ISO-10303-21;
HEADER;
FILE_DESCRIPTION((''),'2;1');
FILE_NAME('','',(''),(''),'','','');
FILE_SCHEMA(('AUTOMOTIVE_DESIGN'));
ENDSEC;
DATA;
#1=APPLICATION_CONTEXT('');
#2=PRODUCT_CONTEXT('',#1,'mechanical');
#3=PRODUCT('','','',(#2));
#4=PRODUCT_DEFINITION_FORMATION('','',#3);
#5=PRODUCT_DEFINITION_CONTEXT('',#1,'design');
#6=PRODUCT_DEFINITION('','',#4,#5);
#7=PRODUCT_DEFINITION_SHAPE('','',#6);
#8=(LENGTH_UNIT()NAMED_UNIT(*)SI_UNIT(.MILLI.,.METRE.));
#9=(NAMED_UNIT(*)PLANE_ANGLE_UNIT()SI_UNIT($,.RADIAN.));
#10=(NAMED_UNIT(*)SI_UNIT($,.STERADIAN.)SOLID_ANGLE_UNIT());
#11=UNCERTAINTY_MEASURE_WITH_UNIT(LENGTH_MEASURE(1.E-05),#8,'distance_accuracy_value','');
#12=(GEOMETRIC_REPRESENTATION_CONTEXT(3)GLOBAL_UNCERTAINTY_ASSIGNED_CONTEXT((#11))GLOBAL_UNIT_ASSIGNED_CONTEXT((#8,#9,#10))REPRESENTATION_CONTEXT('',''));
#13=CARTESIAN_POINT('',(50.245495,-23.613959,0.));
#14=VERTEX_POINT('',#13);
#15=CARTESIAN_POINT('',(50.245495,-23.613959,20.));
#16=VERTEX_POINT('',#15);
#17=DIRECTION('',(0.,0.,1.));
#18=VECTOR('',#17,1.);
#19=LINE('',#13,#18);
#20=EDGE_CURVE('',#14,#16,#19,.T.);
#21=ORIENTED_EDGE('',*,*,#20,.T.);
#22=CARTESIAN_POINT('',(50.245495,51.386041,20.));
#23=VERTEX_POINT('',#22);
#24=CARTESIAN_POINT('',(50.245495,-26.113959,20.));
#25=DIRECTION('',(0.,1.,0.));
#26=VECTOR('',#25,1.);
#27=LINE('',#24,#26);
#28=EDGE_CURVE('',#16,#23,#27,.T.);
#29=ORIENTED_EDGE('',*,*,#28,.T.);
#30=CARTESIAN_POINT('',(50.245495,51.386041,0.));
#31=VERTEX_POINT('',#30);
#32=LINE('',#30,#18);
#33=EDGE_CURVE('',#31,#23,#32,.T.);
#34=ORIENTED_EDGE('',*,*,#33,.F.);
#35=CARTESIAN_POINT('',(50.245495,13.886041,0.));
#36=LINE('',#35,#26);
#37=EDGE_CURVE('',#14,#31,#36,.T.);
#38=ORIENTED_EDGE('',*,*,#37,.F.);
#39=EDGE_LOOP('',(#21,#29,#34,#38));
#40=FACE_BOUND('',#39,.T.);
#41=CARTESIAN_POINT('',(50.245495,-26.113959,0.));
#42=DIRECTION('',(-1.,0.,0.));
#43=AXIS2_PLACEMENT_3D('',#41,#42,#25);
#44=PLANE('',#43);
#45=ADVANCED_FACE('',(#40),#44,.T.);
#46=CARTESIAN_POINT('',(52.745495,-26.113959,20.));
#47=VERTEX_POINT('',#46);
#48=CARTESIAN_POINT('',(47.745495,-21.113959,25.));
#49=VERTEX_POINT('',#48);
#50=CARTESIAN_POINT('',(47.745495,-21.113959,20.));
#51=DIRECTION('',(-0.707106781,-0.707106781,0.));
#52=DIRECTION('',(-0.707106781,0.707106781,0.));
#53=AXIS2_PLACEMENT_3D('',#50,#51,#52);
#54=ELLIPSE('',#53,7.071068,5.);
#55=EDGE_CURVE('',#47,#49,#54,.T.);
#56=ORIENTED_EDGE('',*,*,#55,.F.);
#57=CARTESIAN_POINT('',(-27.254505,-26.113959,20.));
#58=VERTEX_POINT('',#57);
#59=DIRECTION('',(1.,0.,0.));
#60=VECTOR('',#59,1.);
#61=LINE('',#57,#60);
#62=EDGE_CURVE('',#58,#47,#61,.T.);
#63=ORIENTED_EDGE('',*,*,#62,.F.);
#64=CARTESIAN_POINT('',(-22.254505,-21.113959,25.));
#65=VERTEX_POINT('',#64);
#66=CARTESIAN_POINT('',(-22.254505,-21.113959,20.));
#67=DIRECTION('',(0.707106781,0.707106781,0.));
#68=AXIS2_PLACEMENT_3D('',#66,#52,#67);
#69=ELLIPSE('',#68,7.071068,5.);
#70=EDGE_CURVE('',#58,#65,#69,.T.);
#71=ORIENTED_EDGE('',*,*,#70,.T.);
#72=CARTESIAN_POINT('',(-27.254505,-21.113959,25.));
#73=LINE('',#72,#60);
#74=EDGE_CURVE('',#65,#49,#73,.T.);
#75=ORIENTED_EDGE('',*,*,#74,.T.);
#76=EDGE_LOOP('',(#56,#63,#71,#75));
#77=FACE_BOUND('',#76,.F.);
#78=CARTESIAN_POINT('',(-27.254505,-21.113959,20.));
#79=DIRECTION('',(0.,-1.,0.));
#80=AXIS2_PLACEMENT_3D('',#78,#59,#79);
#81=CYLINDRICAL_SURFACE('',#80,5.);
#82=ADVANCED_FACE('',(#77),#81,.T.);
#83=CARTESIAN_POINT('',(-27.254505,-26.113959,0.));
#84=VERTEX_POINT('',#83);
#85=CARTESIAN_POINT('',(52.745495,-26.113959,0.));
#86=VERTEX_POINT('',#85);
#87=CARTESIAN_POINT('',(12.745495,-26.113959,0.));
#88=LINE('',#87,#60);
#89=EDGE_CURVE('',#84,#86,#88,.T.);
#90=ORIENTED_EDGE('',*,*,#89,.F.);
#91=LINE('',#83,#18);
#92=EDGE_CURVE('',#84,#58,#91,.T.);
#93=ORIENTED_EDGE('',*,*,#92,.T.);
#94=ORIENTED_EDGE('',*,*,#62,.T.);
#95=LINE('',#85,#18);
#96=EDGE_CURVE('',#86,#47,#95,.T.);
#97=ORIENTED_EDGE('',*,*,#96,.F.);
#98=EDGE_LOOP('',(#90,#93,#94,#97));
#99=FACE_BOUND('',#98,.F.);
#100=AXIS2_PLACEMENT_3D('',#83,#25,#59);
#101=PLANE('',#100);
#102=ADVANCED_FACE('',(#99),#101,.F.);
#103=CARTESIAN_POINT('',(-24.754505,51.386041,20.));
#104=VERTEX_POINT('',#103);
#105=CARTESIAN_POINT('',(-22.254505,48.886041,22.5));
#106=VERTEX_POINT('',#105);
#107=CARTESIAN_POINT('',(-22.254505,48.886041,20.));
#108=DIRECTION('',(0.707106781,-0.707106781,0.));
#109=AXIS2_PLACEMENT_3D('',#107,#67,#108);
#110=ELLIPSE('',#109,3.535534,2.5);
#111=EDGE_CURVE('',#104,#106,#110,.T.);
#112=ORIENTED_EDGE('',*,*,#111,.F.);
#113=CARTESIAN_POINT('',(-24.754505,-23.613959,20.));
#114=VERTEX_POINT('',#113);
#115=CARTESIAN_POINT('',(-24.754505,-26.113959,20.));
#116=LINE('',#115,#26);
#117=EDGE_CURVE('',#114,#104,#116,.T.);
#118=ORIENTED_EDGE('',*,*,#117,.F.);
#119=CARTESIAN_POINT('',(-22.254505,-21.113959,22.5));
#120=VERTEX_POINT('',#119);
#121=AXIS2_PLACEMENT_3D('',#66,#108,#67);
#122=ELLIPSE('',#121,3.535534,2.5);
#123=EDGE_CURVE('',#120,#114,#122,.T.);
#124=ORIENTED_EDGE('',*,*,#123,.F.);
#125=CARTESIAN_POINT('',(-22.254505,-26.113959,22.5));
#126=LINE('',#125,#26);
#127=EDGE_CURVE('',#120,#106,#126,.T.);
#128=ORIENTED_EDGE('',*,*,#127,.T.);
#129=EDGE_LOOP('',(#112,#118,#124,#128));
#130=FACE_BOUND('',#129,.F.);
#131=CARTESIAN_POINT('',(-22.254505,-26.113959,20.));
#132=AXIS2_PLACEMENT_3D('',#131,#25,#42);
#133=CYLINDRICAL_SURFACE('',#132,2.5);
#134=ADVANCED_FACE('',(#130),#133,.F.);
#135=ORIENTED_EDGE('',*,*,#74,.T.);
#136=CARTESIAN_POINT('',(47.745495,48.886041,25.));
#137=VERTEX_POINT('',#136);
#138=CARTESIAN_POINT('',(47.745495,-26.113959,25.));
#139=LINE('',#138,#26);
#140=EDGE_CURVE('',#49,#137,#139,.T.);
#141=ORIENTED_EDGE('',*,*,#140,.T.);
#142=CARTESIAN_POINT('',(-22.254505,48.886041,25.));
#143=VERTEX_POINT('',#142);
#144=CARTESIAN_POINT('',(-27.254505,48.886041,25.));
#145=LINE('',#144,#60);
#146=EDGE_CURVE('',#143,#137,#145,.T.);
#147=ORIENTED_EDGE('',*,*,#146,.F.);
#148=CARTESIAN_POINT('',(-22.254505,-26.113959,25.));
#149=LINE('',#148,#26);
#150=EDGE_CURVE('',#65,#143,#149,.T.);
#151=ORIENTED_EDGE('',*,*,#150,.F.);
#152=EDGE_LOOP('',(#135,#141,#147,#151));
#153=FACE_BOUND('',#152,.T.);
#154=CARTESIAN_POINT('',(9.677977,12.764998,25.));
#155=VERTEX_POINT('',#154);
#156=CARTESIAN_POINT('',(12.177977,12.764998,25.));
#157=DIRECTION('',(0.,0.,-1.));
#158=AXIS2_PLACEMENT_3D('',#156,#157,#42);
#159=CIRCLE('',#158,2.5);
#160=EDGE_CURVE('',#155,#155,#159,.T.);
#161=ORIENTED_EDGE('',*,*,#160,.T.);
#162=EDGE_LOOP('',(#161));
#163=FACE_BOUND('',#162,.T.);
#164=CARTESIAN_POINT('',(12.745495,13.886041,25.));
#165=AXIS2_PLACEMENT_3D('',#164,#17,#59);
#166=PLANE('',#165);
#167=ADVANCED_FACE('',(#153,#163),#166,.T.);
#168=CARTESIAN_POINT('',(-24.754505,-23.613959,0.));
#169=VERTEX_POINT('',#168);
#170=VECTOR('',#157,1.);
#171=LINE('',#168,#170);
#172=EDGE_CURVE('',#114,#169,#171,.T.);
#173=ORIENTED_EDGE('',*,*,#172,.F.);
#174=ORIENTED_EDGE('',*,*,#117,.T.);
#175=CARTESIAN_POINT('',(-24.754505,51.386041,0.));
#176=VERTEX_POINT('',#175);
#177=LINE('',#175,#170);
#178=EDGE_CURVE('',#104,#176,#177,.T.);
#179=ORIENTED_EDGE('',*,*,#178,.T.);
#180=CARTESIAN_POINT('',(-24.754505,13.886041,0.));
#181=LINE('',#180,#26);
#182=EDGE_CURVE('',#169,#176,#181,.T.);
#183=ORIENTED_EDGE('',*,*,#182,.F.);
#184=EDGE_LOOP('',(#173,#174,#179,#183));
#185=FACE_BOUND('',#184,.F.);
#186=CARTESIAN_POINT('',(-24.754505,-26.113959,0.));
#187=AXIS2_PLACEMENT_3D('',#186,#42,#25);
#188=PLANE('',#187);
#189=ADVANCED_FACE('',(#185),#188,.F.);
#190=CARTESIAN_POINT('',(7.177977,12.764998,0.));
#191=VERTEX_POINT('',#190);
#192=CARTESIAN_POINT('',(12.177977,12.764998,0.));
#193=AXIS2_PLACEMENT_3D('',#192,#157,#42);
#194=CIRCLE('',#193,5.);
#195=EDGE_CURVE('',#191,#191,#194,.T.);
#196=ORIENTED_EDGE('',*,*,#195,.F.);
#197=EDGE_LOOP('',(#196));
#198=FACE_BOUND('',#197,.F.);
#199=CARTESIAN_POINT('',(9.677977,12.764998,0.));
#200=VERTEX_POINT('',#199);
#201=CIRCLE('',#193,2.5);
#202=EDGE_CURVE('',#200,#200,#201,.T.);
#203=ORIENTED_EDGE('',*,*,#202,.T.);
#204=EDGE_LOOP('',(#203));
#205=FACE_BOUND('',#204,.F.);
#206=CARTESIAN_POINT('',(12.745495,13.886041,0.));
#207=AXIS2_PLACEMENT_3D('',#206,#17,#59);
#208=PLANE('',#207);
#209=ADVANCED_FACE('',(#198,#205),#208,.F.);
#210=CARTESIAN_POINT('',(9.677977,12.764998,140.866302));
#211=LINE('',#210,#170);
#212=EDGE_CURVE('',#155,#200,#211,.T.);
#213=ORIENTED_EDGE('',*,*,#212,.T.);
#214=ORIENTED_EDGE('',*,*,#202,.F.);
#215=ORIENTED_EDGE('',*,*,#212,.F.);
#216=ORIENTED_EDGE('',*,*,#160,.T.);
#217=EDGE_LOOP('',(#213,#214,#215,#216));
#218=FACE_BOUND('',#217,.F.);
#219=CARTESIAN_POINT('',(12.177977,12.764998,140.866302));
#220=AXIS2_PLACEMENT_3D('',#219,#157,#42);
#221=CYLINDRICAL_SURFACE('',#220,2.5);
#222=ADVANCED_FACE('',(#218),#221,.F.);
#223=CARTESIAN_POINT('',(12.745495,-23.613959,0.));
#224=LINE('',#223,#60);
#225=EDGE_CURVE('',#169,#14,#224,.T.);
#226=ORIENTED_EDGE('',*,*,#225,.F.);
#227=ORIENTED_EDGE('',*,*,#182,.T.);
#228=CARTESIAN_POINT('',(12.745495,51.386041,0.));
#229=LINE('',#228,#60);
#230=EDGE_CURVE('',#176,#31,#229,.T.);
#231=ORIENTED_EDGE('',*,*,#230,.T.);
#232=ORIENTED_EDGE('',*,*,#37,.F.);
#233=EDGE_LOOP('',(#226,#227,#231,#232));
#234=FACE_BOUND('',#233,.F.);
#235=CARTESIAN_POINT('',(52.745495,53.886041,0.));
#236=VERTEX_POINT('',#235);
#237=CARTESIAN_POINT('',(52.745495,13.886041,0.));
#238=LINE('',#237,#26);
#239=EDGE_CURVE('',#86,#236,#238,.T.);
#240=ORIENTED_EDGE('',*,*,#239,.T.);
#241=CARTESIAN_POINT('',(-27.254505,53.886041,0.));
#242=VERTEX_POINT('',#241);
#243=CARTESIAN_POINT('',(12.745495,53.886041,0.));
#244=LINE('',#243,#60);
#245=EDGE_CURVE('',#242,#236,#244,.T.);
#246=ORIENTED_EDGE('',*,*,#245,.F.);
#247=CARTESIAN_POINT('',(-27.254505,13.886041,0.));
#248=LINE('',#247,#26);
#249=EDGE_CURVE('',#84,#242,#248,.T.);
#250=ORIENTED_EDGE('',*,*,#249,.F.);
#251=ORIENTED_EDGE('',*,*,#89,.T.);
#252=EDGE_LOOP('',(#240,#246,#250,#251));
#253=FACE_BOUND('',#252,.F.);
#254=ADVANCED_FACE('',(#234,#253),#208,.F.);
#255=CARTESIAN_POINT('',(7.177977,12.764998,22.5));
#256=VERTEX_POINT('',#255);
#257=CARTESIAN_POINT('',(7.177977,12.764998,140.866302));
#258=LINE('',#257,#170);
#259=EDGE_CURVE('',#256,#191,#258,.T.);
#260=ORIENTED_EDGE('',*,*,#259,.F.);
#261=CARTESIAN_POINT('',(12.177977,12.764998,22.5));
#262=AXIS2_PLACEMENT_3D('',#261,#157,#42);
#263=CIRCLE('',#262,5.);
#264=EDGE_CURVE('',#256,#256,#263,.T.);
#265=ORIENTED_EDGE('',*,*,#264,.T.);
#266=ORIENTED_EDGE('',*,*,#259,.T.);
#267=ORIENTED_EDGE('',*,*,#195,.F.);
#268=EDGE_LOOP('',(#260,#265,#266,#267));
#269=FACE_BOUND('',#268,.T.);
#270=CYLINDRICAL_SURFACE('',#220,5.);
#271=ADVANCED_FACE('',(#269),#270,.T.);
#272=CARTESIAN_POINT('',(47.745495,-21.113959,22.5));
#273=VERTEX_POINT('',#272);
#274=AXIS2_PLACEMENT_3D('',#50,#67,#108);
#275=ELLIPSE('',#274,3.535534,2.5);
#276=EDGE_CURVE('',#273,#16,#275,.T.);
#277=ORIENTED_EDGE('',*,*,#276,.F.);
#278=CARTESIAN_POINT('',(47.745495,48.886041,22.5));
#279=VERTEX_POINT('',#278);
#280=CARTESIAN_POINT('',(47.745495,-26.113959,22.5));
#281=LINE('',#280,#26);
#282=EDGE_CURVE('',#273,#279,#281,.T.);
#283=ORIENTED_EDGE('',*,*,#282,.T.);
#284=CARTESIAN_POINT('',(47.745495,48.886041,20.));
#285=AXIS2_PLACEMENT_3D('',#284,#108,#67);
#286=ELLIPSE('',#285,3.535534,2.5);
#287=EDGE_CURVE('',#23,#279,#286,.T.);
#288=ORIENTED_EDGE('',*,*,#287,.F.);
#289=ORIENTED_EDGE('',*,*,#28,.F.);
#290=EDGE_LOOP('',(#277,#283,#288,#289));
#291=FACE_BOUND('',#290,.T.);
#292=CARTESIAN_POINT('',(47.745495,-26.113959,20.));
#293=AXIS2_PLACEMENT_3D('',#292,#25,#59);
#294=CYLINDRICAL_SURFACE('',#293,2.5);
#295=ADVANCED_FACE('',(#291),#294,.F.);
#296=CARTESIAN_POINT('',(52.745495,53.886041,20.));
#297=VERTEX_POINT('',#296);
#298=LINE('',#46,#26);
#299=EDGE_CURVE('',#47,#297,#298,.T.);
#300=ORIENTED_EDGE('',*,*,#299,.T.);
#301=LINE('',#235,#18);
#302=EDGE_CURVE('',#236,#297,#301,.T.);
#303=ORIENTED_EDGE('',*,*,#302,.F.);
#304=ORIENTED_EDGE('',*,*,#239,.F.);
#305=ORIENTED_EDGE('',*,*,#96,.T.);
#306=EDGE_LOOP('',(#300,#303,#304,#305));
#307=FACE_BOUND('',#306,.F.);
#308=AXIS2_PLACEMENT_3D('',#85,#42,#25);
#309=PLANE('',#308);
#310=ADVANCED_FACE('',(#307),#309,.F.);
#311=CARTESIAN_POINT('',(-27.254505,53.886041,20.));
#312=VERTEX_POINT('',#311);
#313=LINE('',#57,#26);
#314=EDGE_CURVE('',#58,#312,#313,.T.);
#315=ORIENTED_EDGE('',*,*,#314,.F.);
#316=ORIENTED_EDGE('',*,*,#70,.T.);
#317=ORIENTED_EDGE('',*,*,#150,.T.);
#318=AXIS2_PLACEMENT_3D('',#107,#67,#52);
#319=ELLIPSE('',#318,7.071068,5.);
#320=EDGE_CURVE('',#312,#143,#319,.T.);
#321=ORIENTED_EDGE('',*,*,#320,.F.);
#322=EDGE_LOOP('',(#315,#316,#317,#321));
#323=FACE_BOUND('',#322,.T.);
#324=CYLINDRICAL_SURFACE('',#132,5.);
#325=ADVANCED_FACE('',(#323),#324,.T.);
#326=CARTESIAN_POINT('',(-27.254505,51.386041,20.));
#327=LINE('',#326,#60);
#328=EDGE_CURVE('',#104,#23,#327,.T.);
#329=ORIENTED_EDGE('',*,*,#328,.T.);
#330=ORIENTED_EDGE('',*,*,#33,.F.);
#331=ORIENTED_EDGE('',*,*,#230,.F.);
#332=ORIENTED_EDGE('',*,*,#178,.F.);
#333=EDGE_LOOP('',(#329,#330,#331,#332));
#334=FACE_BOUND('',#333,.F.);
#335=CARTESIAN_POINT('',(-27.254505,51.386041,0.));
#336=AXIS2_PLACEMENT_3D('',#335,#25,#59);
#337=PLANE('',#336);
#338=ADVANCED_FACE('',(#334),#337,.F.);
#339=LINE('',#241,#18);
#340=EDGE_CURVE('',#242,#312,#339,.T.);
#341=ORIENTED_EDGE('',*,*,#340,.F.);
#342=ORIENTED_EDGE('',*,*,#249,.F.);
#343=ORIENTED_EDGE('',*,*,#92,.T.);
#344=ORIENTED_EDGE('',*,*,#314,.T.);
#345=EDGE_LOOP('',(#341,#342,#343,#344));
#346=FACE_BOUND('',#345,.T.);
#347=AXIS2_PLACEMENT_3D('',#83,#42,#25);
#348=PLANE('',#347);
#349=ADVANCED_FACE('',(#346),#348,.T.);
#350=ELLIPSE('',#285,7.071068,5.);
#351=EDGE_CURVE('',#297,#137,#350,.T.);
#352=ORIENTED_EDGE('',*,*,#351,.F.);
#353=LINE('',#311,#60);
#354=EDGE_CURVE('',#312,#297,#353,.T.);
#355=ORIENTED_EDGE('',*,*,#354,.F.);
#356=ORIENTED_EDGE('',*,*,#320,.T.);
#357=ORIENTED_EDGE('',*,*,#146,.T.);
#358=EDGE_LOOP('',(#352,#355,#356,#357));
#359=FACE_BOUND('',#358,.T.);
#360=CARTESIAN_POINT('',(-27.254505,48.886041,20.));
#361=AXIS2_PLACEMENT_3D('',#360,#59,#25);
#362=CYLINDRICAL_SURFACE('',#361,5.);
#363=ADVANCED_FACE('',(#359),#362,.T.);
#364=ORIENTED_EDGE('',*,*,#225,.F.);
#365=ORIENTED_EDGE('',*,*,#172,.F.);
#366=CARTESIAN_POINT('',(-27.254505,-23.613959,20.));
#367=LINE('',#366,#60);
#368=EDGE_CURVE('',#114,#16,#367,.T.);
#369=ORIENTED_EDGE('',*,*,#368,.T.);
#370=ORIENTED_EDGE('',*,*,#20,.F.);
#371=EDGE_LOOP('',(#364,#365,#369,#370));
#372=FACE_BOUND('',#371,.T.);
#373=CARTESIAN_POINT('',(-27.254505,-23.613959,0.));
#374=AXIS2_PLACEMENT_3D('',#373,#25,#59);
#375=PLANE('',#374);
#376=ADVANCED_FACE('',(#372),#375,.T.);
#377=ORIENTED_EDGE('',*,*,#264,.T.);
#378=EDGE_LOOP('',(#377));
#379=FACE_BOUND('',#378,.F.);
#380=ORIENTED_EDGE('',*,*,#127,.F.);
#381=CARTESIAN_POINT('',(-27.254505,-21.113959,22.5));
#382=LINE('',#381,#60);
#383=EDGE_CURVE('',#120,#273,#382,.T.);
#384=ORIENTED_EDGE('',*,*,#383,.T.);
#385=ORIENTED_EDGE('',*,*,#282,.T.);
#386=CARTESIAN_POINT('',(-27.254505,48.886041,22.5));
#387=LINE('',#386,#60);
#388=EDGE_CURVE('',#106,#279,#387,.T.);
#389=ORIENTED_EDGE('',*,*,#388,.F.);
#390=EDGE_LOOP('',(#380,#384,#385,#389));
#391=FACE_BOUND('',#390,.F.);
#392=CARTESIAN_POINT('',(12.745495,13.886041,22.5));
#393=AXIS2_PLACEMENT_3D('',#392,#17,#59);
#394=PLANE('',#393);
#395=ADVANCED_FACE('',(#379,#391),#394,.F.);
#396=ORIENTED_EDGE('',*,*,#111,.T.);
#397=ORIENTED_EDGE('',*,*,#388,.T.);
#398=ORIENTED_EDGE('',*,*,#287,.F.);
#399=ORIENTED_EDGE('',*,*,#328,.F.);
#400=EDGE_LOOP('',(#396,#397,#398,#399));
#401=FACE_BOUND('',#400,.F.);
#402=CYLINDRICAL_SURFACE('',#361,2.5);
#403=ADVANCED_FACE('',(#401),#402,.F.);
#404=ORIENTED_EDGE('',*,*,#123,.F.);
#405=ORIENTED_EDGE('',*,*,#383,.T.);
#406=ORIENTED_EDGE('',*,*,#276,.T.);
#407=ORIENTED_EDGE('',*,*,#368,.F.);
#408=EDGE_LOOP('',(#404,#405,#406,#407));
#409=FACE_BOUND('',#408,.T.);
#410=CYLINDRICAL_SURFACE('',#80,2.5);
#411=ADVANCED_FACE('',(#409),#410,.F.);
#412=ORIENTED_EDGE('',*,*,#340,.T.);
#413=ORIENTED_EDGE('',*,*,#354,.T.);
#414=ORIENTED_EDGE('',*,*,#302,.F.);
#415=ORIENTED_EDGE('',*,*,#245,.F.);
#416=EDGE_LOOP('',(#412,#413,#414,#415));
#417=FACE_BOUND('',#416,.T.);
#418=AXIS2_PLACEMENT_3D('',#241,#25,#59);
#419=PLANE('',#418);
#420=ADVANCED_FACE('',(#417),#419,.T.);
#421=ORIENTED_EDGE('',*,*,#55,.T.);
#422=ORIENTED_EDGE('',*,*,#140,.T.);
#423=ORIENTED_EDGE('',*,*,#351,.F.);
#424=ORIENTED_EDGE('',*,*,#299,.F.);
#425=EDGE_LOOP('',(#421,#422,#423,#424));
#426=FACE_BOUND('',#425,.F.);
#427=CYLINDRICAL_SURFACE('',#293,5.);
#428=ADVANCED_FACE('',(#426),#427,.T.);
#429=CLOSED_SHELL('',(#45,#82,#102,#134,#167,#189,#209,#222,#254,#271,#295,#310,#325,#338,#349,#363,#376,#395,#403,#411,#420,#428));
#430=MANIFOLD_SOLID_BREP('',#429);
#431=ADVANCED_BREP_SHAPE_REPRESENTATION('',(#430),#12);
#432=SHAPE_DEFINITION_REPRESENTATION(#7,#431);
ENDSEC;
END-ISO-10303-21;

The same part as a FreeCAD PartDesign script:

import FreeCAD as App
import Part
import Sketcher
from FreeCAD import Vector


def edges_at(feature, points):
    """Names of the edges that pass closest to the given points."""
    edges = feature.Shape.Edges
    near = lambda p: min(range(len(edges)), key=lambda i: edges[i].distToShape(Part.Vertex(*p))[0])
    return sorted({f"Edge{near(p) + 1}" for p in points})


def faces_at(feature, points):
    """Names of the faces that lie closest to the given points."""
    faces = feature.Shape.Faces
    near = lambda p: min(range(len(faces)), key=lambda i: faces[i].distToShape(Part.Vertex(*p))[0])
    return sorted({f"Face{near(p) + 1}" for p in points})

doc = App.newDocument("Part")
params = doc.addObject("Spreadsheet::Sheet", "Params")
for row, (alias, value) in enumerate([
    ("sketch1_width", "80 mm"),
    ("pad1_length", "25 mm"),
    ("fillet_radius", "5 mm"),
    ("sketch2_diameter", "5 mm"),
    ("hole_diameter", "5 mm"),
    ("thickness_wall", "2.5 mm"),
], start=1):
    params.set(f"A{row}", alias)
    params.set(f"B{row}", "=" + value)
    params.setAlias(f"B{row}", alias)

body = doc.addObject("PartDesign::Body", "Body")

# Sketch on XY plane
sketch1 = body.newObject("Sketcher::SketchObject", "Sketch")
sketch1.AttachmentSupport = (doc.getObject("XY_Plane"), [""])
sketch1.MapMode = "FlatFace"
sketch1.addGeometry(Part.LineSegment(Vector(-27.254505, 53.886041, 0), Vector(-27.254505, -26.113959, 0)), False)
sketch1.addGeometry(Part.LineSegment(Vector(-27.254505, -26.113959, 0), Vector(52.745495, -26.113959, 0)), False)
sketch1.addGeometry(Part.LineSegment(Vector(52.745495, -26.113959, 0), Vector(52.745495, 53.886041, 0)), False)
sketch1.addGeometry(Part.LineSegment(Vector(52.745495, 53.886041, 0), Vector(-27.254505, 53.886041, 0)), False)
sketch1.addConstraint(Sketcher.Constraint("Coincident", 0, 2, 1, 1))
sketch1.addConstraint(Sketcher.Constraint("Coincident", 1, 2, 2, 1))
sketch1.addConstraint(Sketcher.Constraint("Coincident", 2, 2, 3, 1))
sketch1.addConstraint(Sketcher.Constraint("Coincident", 3, 2, 0, 1))
sketch1.addConstraint(Sketcher.Constraint("Vertical", 0))
sketch1.addConstraint(Sketcher.Constraint("Horizontal", 1))
sketch1.addConstraint(Sketcher.Constraint("Vertical", 2))
sketch1.addConstraint(Sketcher.Constraint("Horizontal", 3))
sketch1.addConstraint(Sketcher.Constraint("Equal", 3, 0))
sketch1.addConstraint(Sketcher.Constraint("DistanceX", 1, 1, 1, 2, 80.0))
sketch1.addConstraint(Sketcher.Constraint("DistanceY", 0, 2, -1, 1, 26.113959))
sketch1.addConstraint(Sketcher.Constraint("DistanceX", 0, 2, -1, 1, 27.254505))
sketch1.setExpression("Constraints[9]", "Params.sketch1_width")
pad1 = body.newObject("PartDesign::Pad", "Pad")
pad1.Profile = sketch1
pad1.setExpression("Length", "Params.pad1_length")
doc.recompute()

fillet = body.newObject("PartDesign::Fillet", "Fillet")
fillet.Base = (pad1, edges_at(pad1, [
    (52.745, 13.886, 25),
    (12.745, -26.114, 25),
    (-27.255, 13.886, 25),
    (12.745, 53.886, 25),
]))
fillet.setExpression("Radius", "Params.fillet_radius")

# Sketch on XY plane
sketch2 = body.newObject("Sketcher::SketchObject", "Sketch001")
sketch2.AttachmentSupport = (doc.getObject("XY_Plane"), [""])
sketch2.MapMode = "FlatFace"
sketch2.AttachmentOffset = App.Placement(Vector(0, 0, 25), App.Rotation())
sketch2.addGeometry(Part.Circle(Vector(12.177977, 12.764998, 0), Vector(0, 0, 1), 2.5), False)
sketch2.addConstraint(Sketcher.Constraint("Diameter", 0, 5.0))
sketch2.addConstraint(Sketcher.Constraint("DistanceX", -1, 1, 0, 3, 12.177977))
sketch2.addConstraint(Sketcher.Constraint("DistanceY", -1, 1, 0, 3, 12.764998))
sketch2.setExpression("Constraints[0]", "Params.sketch2_diameter")
doc.recompute()
hole = body.newObject("PartDesign::Hole", "Hole")
hole.Profile = sketch2
hole.ThreadType = "None"
hole.setExpression("Diameter", "Params.hole_diameter")
hole.DepthType = "ThroughAll"
doc.recompute()

thickness = body.newObject("PartDesign::Thickness", "Thickness")
thickness.Base = (hole, faces_at(hole, [(-3.255, -2.114, 0)]))
thickness.setExpression("Value", "Params.thickness_wall")
thickness.Reversed = True
thickness.Join = "Arc"

doc.recompute()
